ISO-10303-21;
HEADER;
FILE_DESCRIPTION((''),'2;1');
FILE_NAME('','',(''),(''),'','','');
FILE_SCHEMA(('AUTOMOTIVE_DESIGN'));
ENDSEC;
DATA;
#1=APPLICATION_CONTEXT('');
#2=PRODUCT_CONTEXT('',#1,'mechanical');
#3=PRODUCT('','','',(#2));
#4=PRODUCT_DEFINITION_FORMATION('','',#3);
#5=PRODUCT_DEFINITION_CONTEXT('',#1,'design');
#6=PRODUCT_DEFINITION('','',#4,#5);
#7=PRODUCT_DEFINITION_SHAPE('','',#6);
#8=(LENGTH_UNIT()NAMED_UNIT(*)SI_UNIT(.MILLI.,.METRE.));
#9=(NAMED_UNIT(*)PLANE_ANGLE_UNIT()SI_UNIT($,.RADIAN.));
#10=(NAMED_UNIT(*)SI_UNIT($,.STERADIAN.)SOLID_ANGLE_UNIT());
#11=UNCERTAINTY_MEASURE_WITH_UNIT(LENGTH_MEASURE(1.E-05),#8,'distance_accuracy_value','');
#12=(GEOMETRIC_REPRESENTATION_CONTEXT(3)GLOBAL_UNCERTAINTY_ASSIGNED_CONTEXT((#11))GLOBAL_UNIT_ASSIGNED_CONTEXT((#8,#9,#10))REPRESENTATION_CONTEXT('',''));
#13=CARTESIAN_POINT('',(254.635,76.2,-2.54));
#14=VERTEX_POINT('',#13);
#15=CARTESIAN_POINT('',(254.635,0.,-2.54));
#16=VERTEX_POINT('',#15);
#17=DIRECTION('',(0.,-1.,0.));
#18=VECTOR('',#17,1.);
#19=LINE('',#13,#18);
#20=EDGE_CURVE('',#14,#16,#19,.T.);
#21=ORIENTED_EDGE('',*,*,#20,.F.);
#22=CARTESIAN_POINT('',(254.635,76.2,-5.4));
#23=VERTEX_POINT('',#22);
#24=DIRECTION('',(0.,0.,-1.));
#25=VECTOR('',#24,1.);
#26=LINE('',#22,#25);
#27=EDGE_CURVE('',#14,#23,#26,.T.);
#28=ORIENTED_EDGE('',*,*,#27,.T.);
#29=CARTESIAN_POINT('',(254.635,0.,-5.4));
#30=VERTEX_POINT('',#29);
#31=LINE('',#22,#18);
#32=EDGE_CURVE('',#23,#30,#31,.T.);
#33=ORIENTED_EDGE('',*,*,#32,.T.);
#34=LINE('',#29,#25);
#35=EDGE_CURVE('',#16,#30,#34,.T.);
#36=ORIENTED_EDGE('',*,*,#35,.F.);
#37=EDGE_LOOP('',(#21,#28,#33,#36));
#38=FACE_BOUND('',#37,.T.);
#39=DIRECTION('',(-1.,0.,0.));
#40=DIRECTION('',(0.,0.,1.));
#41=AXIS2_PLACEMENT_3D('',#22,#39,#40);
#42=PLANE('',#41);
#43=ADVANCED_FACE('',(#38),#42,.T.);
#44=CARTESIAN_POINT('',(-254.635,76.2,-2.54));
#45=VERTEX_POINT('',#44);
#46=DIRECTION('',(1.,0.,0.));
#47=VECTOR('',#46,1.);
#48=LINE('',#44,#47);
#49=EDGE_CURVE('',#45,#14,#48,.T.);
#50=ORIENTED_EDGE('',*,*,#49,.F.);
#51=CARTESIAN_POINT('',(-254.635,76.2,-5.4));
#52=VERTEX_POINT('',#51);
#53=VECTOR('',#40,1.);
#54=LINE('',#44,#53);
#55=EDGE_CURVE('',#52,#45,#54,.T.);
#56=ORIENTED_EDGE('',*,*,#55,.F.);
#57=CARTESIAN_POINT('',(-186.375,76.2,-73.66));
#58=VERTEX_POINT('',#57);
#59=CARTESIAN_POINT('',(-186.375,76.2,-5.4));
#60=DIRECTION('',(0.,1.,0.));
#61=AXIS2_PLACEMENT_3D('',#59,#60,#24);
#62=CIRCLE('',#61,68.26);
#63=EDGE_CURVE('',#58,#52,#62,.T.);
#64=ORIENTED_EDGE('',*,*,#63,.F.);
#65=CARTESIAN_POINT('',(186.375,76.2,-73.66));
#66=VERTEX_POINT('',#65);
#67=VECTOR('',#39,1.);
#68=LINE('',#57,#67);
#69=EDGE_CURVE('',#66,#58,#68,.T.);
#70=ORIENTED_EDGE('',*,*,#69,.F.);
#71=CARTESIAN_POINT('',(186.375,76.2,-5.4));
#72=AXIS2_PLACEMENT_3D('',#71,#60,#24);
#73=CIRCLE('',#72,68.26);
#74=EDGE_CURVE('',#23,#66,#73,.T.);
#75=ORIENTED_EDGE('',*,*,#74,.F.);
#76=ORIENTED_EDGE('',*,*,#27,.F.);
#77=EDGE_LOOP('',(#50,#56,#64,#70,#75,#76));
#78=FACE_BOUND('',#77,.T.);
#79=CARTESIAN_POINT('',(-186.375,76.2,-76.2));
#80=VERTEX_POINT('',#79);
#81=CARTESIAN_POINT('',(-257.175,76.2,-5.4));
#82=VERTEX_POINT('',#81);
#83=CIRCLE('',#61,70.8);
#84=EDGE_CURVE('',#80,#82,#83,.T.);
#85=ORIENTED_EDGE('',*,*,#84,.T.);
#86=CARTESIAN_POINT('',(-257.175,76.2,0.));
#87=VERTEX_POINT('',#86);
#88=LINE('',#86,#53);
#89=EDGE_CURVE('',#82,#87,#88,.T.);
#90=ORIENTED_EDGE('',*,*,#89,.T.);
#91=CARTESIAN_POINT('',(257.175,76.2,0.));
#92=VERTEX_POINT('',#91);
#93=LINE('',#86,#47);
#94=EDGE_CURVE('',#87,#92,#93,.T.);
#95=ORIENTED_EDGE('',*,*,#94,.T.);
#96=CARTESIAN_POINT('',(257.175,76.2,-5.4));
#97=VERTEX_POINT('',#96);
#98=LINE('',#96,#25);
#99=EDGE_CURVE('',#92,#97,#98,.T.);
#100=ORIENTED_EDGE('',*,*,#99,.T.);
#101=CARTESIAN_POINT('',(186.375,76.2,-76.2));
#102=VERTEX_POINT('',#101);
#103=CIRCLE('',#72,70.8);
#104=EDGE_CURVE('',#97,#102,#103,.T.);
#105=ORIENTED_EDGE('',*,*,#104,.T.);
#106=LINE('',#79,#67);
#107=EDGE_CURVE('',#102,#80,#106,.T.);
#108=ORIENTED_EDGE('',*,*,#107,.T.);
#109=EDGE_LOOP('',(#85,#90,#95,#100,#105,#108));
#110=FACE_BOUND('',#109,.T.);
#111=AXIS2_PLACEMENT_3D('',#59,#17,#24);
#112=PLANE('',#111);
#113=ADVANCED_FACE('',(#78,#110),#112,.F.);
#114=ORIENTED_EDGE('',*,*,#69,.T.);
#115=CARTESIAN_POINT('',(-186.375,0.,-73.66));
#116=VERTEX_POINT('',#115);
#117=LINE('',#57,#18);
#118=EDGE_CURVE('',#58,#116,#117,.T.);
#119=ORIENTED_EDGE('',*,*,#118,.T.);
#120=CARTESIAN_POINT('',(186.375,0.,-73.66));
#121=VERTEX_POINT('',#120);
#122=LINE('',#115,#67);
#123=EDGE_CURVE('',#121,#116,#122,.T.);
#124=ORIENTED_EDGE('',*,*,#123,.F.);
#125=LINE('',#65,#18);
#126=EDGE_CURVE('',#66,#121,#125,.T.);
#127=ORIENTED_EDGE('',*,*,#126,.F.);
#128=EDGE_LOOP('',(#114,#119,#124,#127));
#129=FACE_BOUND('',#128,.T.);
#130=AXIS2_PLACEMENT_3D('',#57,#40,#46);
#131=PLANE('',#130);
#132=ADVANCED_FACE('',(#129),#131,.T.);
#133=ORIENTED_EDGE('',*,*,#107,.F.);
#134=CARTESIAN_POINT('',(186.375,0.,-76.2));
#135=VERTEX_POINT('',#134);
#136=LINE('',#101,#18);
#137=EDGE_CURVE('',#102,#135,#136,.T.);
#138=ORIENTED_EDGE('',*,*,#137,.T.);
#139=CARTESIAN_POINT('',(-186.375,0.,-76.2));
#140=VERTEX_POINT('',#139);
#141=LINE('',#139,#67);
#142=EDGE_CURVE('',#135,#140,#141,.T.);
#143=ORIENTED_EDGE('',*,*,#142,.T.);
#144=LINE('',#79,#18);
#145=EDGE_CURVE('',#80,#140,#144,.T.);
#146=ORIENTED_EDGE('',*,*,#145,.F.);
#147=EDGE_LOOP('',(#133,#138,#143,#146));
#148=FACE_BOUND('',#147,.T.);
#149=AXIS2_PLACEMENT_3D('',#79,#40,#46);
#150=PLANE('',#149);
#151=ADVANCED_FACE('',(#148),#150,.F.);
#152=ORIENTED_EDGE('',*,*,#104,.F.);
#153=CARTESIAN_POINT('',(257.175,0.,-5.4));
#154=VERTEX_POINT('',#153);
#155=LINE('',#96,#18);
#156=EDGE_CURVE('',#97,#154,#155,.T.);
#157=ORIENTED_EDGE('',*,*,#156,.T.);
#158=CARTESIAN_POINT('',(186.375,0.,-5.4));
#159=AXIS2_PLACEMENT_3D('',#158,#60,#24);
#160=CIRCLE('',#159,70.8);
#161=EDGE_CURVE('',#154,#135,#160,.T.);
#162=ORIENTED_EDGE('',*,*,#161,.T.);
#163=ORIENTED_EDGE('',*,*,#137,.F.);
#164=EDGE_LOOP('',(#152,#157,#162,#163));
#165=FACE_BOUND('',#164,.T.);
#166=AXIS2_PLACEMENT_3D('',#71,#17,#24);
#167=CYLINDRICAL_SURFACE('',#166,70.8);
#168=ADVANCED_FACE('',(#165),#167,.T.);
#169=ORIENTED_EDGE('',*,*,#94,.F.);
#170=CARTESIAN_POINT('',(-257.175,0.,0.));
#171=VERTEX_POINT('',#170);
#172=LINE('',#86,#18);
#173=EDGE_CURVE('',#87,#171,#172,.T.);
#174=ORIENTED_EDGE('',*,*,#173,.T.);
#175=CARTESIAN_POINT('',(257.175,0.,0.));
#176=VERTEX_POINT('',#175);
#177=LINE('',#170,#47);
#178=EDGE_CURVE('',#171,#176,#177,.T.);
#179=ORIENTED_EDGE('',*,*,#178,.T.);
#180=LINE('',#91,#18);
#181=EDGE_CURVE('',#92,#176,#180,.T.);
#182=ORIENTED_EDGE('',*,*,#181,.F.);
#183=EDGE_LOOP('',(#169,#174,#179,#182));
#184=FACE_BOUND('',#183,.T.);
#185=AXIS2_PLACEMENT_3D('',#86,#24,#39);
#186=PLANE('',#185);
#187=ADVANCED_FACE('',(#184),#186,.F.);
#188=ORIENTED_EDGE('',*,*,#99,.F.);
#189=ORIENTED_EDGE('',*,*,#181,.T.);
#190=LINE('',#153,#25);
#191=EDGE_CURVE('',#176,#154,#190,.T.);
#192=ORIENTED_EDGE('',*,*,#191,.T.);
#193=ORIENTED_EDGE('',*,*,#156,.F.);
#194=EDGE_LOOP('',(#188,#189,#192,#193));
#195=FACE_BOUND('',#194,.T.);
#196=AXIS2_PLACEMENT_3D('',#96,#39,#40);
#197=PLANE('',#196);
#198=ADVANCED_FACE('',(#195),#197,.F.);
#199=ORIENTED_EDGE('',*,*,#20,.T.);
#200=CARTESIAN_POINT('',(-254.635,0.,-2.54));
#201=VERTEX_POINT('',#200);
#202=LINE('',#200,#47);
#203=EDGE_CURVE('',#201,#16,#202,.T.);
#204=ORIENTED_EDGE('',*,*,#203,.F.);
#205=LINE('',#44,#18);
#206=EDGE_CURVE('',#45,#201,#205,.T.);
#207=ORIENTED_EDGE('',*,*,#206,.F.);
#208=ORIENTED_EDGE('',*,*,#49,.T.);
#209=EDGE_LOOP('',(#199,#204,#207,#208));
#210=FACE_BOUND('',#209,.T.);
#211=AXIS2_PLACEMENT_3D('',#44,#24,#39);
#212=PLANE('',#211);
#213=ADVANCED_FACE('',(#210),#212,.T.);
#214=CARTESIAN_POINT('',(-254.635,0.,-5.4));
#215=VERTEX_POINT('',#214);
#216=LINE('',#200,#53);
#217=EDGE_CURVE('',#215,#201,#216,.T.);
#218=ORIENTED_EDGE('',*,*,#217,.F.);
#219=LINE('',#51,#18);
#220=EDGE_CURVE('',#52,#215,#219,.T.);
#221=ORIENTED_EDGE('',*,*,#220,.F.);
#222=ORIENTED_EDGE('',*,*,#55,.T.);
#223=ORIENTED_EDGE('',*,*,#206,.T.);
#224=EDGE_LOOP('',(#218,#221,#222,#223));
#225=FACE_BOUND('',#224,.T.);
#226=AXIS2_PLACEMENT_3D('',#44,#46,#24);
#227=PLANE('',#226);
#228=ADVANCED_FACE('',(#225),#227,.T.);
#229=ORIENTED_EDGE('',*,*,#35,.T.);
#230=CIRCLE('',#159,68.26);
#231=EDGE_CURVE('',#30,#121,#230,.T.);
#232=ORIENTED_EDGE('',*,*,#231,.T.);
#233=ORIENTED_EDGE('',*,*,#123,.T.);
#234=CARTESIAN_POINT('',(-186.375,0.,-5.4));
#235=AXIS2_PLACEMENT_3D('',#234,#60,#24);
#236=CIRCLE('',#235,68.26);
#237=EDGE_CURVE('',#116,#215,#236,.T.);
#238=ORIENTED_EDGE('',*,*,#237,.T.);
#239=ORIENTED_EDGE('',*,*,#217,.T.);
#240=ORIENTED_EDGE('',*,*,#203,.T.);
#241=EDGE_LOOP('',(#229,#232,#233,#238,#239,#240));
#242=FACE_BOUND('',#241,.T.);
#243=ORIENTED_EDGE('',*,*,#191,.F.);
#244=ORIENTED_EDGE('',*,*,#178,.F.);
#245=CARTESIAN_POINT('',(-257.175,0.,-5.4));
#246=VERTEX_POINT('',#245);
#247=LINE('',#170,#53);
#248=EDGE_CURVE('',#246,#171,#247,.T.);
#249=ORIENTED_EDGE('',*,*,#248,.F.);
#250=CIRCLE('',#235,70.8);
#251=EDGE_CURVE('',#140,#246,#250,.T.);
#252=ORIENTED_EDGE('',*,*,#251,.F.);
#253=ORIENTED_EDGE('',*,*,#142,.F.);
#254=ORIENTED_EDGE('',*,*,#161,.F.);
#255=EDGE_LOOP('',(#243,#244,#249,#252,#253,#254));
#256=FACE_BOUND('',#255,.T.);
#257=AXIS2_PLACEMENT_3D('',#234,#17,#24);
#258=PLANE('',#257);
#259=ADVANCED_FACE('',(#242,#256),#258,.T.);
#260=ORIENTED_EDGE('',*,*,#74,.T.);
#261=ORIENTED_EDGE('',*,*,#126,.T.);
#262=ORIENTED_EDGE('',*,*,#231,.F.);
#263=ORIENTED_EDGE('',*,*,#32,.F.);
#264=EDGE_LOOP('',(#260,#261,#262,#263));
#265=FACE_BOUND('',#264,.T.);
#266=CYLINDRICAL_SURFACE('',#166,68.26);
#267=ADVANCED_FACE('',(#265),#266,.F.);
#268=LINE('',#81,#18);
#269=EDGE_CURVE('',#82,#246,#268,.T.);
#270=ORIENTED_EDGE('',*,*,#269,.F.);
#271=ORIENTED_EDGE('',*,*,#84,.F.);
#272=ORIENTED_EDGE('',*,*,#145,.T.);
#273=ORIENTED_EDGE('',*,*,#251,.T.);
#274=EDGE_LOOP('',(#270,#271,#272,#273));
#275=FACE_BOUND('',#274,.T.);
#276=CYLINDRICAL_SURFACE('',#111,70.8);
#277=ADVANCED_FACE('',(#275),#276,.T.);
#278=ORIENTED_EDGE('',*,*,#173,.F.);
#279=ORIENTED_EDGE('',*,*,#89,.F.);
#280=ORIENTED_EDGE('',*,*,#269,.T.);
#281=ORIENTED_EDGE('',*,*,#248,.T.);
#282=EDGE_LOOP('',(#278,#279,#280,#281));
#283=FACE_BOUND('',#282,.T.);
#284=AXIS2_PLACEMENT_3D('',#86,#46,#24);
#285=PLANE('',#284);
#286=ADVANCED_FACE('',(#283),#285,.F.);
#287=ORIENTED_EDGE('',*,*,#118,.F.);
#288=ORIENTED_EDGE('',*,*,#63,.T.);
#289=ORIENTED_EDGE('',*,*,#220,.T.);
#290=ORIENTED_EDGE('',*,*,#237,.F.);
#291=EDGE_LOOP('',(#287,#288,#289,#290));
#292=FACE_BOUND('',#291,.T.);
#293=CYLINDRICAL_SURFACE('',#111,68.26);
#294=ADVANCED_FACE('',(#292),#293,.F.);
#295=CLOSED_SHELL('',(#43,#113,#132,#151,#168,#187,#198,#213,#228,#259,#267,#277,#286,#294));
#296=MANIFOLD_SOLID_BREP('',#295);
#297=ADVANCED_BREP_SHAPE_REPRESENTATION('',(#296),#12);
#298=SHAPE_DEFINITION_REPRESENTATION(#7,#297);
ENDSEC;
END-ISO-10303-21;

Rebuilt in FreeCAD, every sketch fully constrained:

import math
import FreeCAD as App
import Part
import Sketcher

V = App.Vector
Q = App.Units.Quantity

doc = App.newDocument("Part")
body = doc.addObject("PartDesign::Body", "Body")

# Sketch on XZ plane
sketch1 = doc.addObject("Sketcher::SketchObject", "Sketch")
body.addObject(sketch1)
sketch1.AttachmentSupport = (doc.XZ_Plane, [""])
sketch1.MapMode = "FlatFace"
sketch1.addGeometry([
    Part.LineSegment(V(-257.2, 0, 0), V(257.2, 0, 0)),  # 0
    Part.LineSegment(V(257.2, 0, 0), V(257.2, -5.4, 0)),  # 1
    Part.ArcOfCircle(Part.Circle(V(186.4, -5.4, 0), V(0, 0, 1), 70.8), math.radians(-90), math.radians(0)),  # 2
    Part.LineSegment(V(186.4, -76.2, 0), V(-186.4, -76.2, 0)),  # 3
    Part.ArcOfCircle(Part.Circle(V(-186.4, -5.4, 0), V(0, 0, 1), 70.8), math.radians(180), math.radians(270)),  # 4
    Part.LineSegment(V(-257.2, -5.4, 0), V(-257.2, 0, 0)),  # 5
    Part.ArcOfCircle(Part.Circle(V(186.4, -5.4, 0), V(0, 0, 1), 68.3), math.radians(-90), math.radians(0)),  # 6
    Part.LineSegment(V(254.6, -5.4, 0), V(254.6, -2.5, 0)),  # 7
    Part.LineSegment(V(254.6, -2.5, 0), V(-254.6, -2.5, 0)),  # 8
    Part.LineSegment(V(-254.6, -2.5, 0), V(-254.6, -5.4, 0)),  # 9
    Part.ArcOfCircle(Part.Circle(V(-186.4, -5.4, 0), V(0, 0, 1), 68.3), math.radians(180), math.radians(270)),  # 10
    Part.LineSegment(V(-186.4, -73.7, 0), V(186.4, -73.7, 0)),  # 11
], False)
sketch1.addConstraint([
    Sketcher.Constraint("Coincident", 0, 2, 1, 1),
    Sketcher.Constraint("Tangent", 1, 2, 2, 2),
    Sketcher.Constraint("Tangent", 2, 1, 3, 1),
    Sketcher.Constraint("Tangent", 3, 2, 4, 2),
    Sketcher.Constraint("Tangent", 4, 1, 5, 1),
    Sketcher.Constraint("Coincident", 5, 2, 0, 1),
    Sketcher.Constraint("Tangent", 6, 2, 7, 1),
    Sketcher.Constraint("Coincident", 7, 2, 8, 1),
    Sketcher.Constraint("Coincident", 8, 2, 9, 1),
    Sketcher.Constraint("Tangent", 9, 2, 10, 1),
    Sketcher.Constraint("Tangent", 10, 2, 11, 1),
    Sketcher.Constraint("Tangent", 11, 2, 6, 1),
    Sketcher.Constraint("Horizontal", 0),
    Sketcher.Constraint("Vertical", 1),
    Sketcher.Constraint("Horizontal", 3),
    Sketcher.Constraint("Vertical", 5),
    Sketcher.Constraint("Vertical", 7),
    Sketcher.Constraint("Horizontal", 8),
    Sketcher.Constraint("Vertical", 9),
    Sketcher.Constraint("Horizontal", 11),
    Sketcher.Constraint("Coincident", 6, 3, 2, 3),
    Sketcher.Constraint("Coincident", 10, 3, 4, 3),
    Sketcher.Constraint("Equal", 2, 4),
    Sketcher.Constraint("Symmetric", 0, 2, 5, 2, -1, 1),
    Sketcher.Constraint("DistanceY", 2, 1, -1, 1, Q("3 in")),
    Sketcher.Constraint("DistanceX", 0, 1, 0, 2, Q("20.25 in")),
    Sketcher.Constraint("DistanceX", 8, 2, 8, 1, Q("20.05 in")),
    Sketcher.Constraint("DistanceY", 7, 2, -1, 1, Q("0.1 in")),
    Sketcher.Constraint("Radius", 2, Q("70.8 mm")),
])
pad1 = doc.addObject("PartDesign::Pad", "Pad")
body.addObject(pad1)
pad1.Profile = sketch1
pad1.Length = Q("3 in")
pad1.Reversed = True

doc.recompute()
